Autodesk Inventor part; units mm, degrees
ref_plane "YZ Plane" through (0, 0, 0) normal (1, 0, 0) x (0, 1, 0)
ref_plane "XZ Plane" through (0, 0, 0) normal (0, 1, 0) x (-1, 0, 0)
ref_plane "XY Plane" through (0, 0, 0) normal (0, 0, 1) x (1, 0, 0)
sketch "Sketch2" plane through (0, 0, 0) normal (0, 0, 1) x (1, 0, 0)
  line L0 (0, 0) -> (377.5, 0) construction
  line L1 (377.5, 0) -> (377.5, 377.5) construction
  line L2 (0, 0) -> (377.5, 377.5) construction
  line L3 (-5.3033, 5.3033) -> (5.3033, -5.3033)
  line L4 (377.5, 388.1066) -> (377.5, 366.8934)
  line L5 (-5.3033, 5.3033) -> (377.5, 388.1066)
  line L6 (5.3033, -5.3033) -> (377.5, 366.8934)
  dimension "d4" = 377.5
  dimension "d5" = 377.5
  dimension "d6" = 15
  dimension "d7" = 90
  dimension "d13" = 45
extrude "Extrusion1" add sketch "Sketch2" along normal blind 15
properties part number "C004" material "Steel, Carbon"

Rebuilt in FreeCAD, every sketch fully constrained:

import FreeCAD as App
import Part
import Sketcher
from FreeCAD import Vector
Q = App.Units.Quantity


def add_polygon(sketch, points):
    """Adds a closed chain of lines whose ends are joined by coincident constraints."""
    first, n = sketch.GeometryCount, len(points)
    for a, b in zip(points, points[1:] + points[:1]):
        sketch.addGeometry(Part.LineSegment(App.Vector(*a, 0), App.Vector(*b, 0)), False)
    for i in range(n):
        sketch.addConstraint(Sketcher.Constraint("Coincident", first + i, 2, first + (i + 1) % n, 1))

doc = App.newDocument("Part")
body = doc.addObject("PartDesign::Body", "Body")

# Sketch on XY plane
sketch1 = doc.addObject("Sketcher::SketchObject", "Sketch")
body.addObject(sketch1)
sketch1.AttachmentSupport = (doc.XY_Plane, [""])
sketch1.MapMode = "FlatFace"
add_polygon(sketch1, [(378, 388), (-5, 5), (5, -5), (378, 367)])  # lines 0-3
sketch1.addConstraint([
    Sketcher.Constraint("Vertical", 3),
    Sketcher.Constraint("Symmetric", 0, 2, 1, 2, -1, 1),
    Sketcher.Constraint("Perpendicular", 0, 1),
    Sketcher.Constraint("Perpendicular", 1, 2),
    Sketcher.Constraint("Angle", 1, Q("-45 deg")),
    Sketcher.Constraint("Distance", 1, Q("15 mm")),
    Sketcher.Constraint("DistanceX", -1, 1, 2, 2, Q("377.5 mm")),
])
pad1 = doc.addObject("PartDesign::Pad", "Pad")
body.addObject(pad1)
pad1.Profile = sketch1
pad1.Length = 15

doc.recompute()
